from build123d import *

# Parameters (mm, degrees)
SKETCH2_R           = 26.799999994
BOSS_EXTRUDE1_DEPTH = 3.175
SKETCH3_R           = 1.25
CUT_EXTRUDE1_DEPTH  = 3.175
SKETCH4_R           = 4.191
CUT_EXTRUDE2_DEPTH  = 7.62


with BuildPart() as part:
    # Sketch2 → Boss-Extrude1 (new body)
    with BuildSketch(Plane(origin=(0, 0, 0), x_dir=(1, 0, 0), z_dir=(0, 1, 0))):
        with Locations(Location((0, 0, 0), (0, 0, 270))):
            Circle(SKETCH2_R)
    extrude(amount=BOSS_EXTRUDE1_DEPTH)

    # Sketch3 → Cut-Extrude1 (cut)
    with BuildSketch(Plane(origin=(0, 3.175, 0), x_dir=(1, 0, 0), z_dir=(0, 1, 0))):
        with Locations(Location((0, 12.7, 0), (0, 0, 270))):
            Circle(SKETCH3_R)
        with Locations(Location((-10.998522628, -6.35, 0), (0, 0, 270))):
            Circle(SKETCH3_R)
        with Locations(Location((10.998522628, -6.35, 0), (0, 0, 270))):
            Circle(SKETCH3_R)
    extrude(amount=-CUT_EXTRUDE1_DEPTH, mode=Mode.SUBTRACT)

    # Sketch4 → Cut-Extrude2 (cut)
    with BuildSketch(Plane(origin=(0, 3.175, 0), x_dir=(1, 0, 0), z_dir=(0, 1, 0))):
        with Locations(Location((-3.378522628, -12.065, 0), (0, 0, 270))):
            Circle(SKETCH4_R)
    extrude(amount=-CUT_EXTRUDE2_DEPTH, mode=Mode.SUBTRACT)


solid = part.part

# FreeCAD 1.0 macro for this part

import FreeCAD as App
import Part
import Sketcher
Q = App.Units.Quantity

doc = App.newDocument("Part")
params = doc.addObject("Spreadsheet::Sheet", "Params")
for row, (alias, value) in enumerate([
    ("pad1_length", "0.125 in"),
    ("pocket1_length", "0.125 in"),
    ("sketch3_diameter", "0.33 in"),
    ("pocket2_length", "0.3 in"),
], start=1):
    params.set(f"A{row}", alias)
    params.set(f"B{row}", "=" + value)
    params.setAlias(f"B{row}", alias)

body = doc.addObject("PartDesign::Body", "Body")

# Sketch on XZ plane
sketch1 = body.newObject("Sketcher::SketchObject", "Sketch")
sketch1.AttachmentSupport = (doc.getObject("XZ_Plane"), [""])
sketch1.MapMode = "FlatFace"
sketch1.addGeometry(Part.Circle(App.Vector(0, 0, 0), App.Vector(0, 0, 1), 27), False)
sketch1.addConstraint([
    Sketcher.Constraint("Coincident", 0, 3, -1, 1),
    Sketcher.Constraint("Diameter", 0, 53.6),
])
pad1 = body.newObject("PartDesign::Pad", "Pad")
pad1.Profile = sketch1
pad1.setExpression("Length", "Params.pad1_length")
pad1.Reversed = True

# Sketch on XZ plane
sketch2 = body.newObject("Sketcher::SketchObject", "Sketch001")
sketch2.AttachmentSupport = (doc.getObject("XZ_Plane"), [""])
sketch2.MapMode = "FlatFace"
sketch2.AttachmentOffset = App.Placement(App.Vector(0, 0, -0.125 * 25.4), App.Rotation())
sketch2.addGeometry([
    Part.Circle(App.Vector(0, -12.7, 0), App.Vector(0, 0, 1), 1.2),
    Part.Circle(App.Vector(-11, 6.3, 0), App.Vector(0, 0, 1), 1.2),
    Part.Circle(App.Vector(11, 6.3, 0), App.Vector(0, 0, 1), 1.2),
], False)
sketch2.addConstraint([
    Sketcher.Constraint("Equal", 0, 1),
    Sketcher.Constraint("Equal", 1, 2),
    Sketcher.Constraint("Symmetric", 1, 3, 2, 3, -2),
    Sketcher.Constraint("PointOnObject", 0, 3, -2),
    Sketcher.Constraint("DistanceY", 0, 3, -1, 1, Q("0.5 in")),
    Sketcher.Constraint("Diameter", 0, 2.5),
    Sketcher.Constraint("DistanceY", -1, 1, 1, 3, Q("0.25 in")),
    Sketcher.Constraint("DistanceX", 1, 3, -1, 1, 10.998523),
])
pocket1 = body.newObject("PartDesign::Pocket", "Pocket")
pocket1.Profile = sketch2
pocket1.setExpression("Length", "Params.pocket1_length")
pocket1.Reversed = True

# Sketch on XZ plane
sketch3 = body.newObject("Sketcher::SketchObject", "Sketch002")
sketch3.AttachmentSupport = (doc.getObject("XZ_Plane"), [""])
sketch3.MapMode = "FlatFace"
sketch3.AttachmentOffset = App.Placement(App.Vector(0, 0, -0.125 * 25.4), App.Rotation())
sketch3.addGeometry(Part.Circle(App.Vector(-3.4, 12.1, 0), App.Vector(0, 0, 1), 4.2), False)
sketch3.addConstraint([
    Sketcher.Constraint("Diameter", 0, Q("0.33 in")),
    Sketcher.Constraint("DistanceY", -1, 1, 0, 3, Q("0.475 in")),
    Sketcher.Constraint("DistanceX", 0, 3, -1, 1, 3.378523),
])
sketch3.setExpression("Constraints[0]", "Params.sketch3_diameter")
pocket2 = body.newObject("PartDesign::Pocket", "Pocket001")
pocket2.Profile = sketch3
pocket2.setExpression("Length", "Params.pocket2_length")
pocket2.Reversed = True

doc.recompute()
